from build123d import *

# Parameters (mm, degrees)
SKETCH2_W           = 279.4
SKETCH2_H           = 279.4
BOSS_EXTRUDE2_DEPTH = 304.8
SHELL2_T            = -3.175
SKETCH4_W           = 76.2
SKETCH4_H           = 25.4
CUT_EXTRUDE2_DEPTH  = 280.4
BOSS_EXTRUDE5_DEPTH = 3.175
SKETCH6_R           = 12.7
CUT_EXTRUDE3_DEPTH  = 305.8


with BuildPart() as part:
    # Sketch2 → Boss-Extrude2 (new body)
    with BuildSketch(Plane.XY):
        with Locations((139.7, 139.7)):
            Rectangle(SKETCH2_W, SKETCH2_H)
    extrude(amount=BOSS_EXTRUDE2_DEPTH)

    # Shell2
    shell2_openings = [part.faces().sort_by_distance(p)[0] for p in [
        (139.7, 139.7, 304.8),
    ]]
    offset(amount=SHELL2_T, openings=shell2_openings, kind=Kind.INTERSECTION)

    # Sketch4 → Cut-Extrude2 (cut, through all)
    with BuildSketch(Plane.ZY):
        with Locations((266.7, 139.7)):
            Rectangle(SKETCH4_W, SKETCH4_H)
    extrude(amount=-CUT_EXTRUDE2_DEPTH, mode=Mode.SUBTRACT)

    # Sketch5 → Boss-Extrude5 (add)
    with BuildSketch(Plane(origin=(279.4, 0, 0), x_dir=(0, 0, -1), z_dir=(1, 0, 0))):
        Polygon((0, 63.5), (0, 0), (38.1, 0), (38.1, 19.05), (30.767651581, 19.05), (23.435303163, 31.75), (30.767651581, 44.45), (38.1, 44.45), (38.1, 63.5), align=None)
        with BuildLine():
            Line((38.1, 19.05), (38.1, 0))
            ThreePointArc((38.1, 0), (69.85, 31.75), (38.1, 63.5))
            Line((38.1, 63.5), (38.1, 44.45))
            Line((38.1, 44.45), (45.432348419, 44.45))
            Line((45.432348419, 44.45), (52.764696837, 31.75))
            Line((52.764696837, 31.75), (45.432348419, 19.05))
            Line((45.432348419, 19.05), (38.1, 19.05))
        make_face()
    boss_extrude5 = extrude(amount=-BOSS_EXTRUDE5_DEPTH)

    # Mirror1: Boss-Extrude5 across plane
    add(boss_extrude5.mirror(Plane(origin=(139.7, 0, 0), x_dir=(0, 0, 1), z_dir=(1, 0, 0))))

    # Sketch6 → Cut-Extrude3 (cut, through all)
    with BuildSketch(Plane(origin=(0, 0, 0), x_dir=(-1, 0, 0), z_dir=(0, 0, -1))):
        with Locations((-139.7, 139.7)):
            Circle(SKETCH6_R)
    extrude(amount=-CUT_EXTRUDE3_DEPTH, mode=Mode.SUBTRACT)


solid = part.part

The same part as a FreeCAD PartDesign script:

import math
import FreeCAD as App
import Part
import Sketcher
from FreeCAD import Vector
Q = App.Units.Quantity


def faces_at(feature, points):
    """Names of the faces that lie closest to the given points."""
    faces = feature.Shape.Faces
    near = lambda p: min(range(len(faces)), key=lambda i: faces[i].distToShape(Part.Vertex(*p))[0])
    return sorted({f"Face{near(p) + 1}" for p in points})

doc = App.newDocument("Part")
body = doc.addObject("PartDesign::Body", "Body")

# Sketch on XY plane
sketch1 = doc.addObject("Sketcher::SketchObject", "Sketch")
body.addObject(sketch1)
sketch1.AttachmentSupport = (doc.XY_Plane, [""])
sketch1.MapMode = "FlatFace"
sketch1.addGeometry([
    Part.LineSegment(Vector(0, 279, 0), Vector(0, 0, 0)),
    Part.LineSegment(Vector(0, 0, 0), Vector(279, 0, 0)),
    Part.LineSegment(Vector(279, 0, 0), Vector(279, 279, 0)),
    Part.LineSegment(Vector(279, 279, 0), Vector(0, 279, 0)),
], False)
sketch1.addConstraint([
    Sketcher.Constraint("Coincident", 0, 2, 1, 1),
    Sketcher.Constraint("Coincident", 1, 2, 2, 1),
    Sketcher.Constraint("Coincident", 2, 2, 3, 1),
    Sketcher.Constraint("Coincident", 3, 2, 0, 1),
    Sketcher.Constraint("Vertical", 0),
    Sketcher.Constraint("Horizontal", 1),
    Sketcher.Constraint("Vertical", 2),
    Sketcher.Constraint("Horizontal", 3),
    Sketcher.Constraint("Coincident", 0, 2, -1, 1),
    Sketcher.Constraint("Equal", 3, 0),
    Sketcher.Constraint("DistanceX", 1, 1, 1, 2, Q("11 in")),
])
pad1 = doc.addObject("PartDesign::Pad", "Pad")
body.addObject(pad1)
pad1.Profile = sketch1
pad1.Length = Q("12 in")
doc.recompute()

thickness = doc.addObject("PartDesign::Thickness", "Thickness")
body.addObject(thickness)
thickness.Base = (pad1, faces_at(pad1, [(139.7, 139.7, 304.8)]))
thickness.Value = Q("0.125 in")
thickness.Reversed = True
thickness.Join = "Intersection"

# Sketch on YZ plane
sketch2 = doc.addObject("Sketcher::SketchObject", "Sketch001")
body.addObject(sketch2)
sketch2.AttachmentSupport = (doc.YZ_Plane, [""])
sketch2.MapMode = "FlatFace"
sketch2.addGeometry([
    Part.LineSegment(Vector(152, 229, 0), Vector(127, 229, 0)),
    Part.LineSegment(Vector(127, 229, 0), Vector(127, 305, 0)),
    Part.LineSegment(Vector(127, 305, 0), Vector(152, 305, 0)),
    Part.LineSegment(Vector(152, 305, 0), Vector(152, 229, 0)),
], False)
sketch2.addConstraint([
    Sketcher.Constraint("Coincident", 0, 2, 1, 1),
    Sketcher.Constraint("Coincident", 1, 2, 2, 1),
    Sketcher.Constraint("Coincident", 2, 2, 3, 1),
    Sketcher.Constraint("Coincident", 3, 2, 0, 1),
    Sketcher.Constraint("Horizontal", 0),
    Sketcher.Constraint("Vertical", 1),
    Sketcher.Constraint("Horizontal", 2),
    Sketcher.Constraint("Vertical", 3),
    Sketcher.Constraint("DistanceX", 0, 2, 0, 1, Q("1 in")),
    Sketcher.Constraint("DistanceY", 1, 1, 1, 2, Q("3 in")),
    Sketcher.Constraint("DistanceX", -1, 1, 0, 2, Q("5 in")),
    Sketcher.Constraint("DistanceY", -1, 1, 0, 2, Q("9 in")),
])
pocket1 = doc.addObject("PartDesign::Pocket", "Pocket")
body.addObject(pocket1)
pocket1.Profile = sketch2
pocket1.Type = "ThroughAll"
pocket1.Reversed = True

# Sketch on YZ plane
sketch3 = doc.addObject("Sketcher::SketchObject", "Sketch002")
body.addObject(sketch3)
sketch3.AttachmentSupport = (doc.YZ_Plane, [""])
sketch3.MapMode = "FlatFace"
sketch3.AttachmentOffset = App.Placement(Vector(0, 0, 11 * 25.4), App.Rotation())
sketch3.addGeometry([
    Part.LineSegment(Vector(64, 0, 0), Vector(0, 0, 0)),  # 0
    Part.LineSegment(Vector(0, 0, 0), Vector(0, -38, 0)),  # 1
    Part.ArcOfCircle(Part.Circle(Vector(32, -38, 0), Vector(0, 0, 1), 32), math.radians(180), math.radians(360)),  # 2
    Part.LineSegment(Vector(64, -38, 0), Vector(64, 0, 0)),  # 3
    Part.LineSegment(Vector(19, -31, 0), Vector(32, -23, 0)),  # 4
    Part.LineSegment(Vector(32, -23, 0), Vector(44, -31, 0)),  # 5
    Part.LineSegment(Vector(44, -31, 0), Vector(44, -45, 0)),  # 6
    Part.LineSegment(Vector(44, -45, 0), Vector(32, -53, 0)),  # 7
    Part.LineSegment(Vector(32, -53, 0), Vector(19, -45, 0)),  # 8
    Part.LineSegment(Vector(19, -45, 0), Vector(19, -31, 0)),  # 9
], False)
sketch3.addConstraint([
    Sketcher.Constraint("Coincident", 0, 2, 1, 1),
    Sketcher.Constraint("Tangent", 1, 2, 2, 1),
    Sketcher.Constraint("Tangent", 2, 2, 3, 1),
    Sketcher.Constraint("Coincident", 3, 2, 0, 1),
    Sketcher.Constraint("Coincident", 4, 2, 5, 1),
    Sketcher.Constraint("Coincident", 5, 2, 6, 1),
    Sketcher.Constraint("Coincident", 6, 2, 7, 1),
    Sketcher.Constraint("Coincident", 7, 2, 8, 1),
    Sketcher.Constraint("Coincident", 8, 2, 9, 1),
    Sketcher.Constraint("Coincident", 9, 2, 4, 1),
    Sketcher.Constraint("Horizontal", 0),
    Sketcher.Constraint("Vertical", 1),
    Sketcher.Constraint("Vertical", 3),
    Sketcher.Constraint("Vertical", 6),
    Sketcher.Constraint("Vertical", 9),
    Sketcher.Constraint("Coincident", 0, 2, -1, 1),
    Sketcher.Constraint("Parallel", 4, 7),
    Sketcher.Constraint("Parallel", 5, 8),
    Sketcher.Constraint("Horizontal", 6, 2, 8, 2),
    Sketcher.Constraint("Horizontal", 5, 2, 9, 2),
    Sketcher.Constraint("Vertical", 2, 3, 4, 2),
    Sketcher.Constraint("Vertical", 4, 2, 7, 2),
    Sketcher.Constraint("Radius", 2, Q("1.25 in")),
    Sketcher.Constraint("DistanceY", 1, 2, 1, 1, Q("1.5 in")),
    Sketcher.Constraint("Angle", 4, Q("30 deg")),
    Sketcher.Constraint("DistanceX", 8, 2, 6, 2, Q("1 in")),
    Sketcher.Constraint("DistanceY", 6, 2, 6, 1, 14.664697),
    Sketcher.Constraint("DistanceY", 5, 2, -1, 1, 30.767652),
])
pad2 = doc.addObject("PartDesign::Pad", "Pad001")
body.addObject(pad2)
pad2.Profile = sketch3
pad2.Length = Q("0.125 in")
pad2.Reversed = True
doc.recompute()

datumplane = doc.addObject("PartDesign::Plane", "DatumPlane")
body.addObject(datumplane)
datumplane.AttachmentSupport = (doc.YZ_Plane, [""])
datumplane.MapMode = "FlatFace"
datumplane.AttachmentOffset = App.Placement(Vector(0, 0, 5.5 * 25.4), App.Rotation())
mirrored = doc.addObject("PartDesign::Mirrored", "Mirrored")
body.addObject(mirrored)
mirrored.Originals = [pad2]
mirrored.MirrorPlane = (datumplane, [""])
body.Tip = mirrored

# Sketch on XY plane
sketch4 = doc.addObject("Sketcher::SketchObject", "Sketch003")
body.addObject(sketch4)
sketch4.AttachmentSupport = (doc.XY_Plane, [""])
sketch4.MapMode = "FlatFace"
sketch4.addGeometry(Part.Circle(Vector(140, 140, 0), Vector(0, 0, 1), 13), False)
sketch4.addConstraint([
    Sketcher.Constraint("Diameter", 0, Q("1 in")),
    Sketcher.Constraint("DistanceX", -1, 1, 0, 3, Q("5.5 in")),
    Sketcher.Constraint("DistanceY", -1, 1, 0, 3, Q("5.5 in")),
])
pocket2 = doc.addObject("PartDesign::Pocket", "Pocket001")
body.addObject(pocket2)
pocket2.Profile = sketch4
pocket2.Type = "ThroughAll"
pocket2.Reversed = True

doc.recompute()
